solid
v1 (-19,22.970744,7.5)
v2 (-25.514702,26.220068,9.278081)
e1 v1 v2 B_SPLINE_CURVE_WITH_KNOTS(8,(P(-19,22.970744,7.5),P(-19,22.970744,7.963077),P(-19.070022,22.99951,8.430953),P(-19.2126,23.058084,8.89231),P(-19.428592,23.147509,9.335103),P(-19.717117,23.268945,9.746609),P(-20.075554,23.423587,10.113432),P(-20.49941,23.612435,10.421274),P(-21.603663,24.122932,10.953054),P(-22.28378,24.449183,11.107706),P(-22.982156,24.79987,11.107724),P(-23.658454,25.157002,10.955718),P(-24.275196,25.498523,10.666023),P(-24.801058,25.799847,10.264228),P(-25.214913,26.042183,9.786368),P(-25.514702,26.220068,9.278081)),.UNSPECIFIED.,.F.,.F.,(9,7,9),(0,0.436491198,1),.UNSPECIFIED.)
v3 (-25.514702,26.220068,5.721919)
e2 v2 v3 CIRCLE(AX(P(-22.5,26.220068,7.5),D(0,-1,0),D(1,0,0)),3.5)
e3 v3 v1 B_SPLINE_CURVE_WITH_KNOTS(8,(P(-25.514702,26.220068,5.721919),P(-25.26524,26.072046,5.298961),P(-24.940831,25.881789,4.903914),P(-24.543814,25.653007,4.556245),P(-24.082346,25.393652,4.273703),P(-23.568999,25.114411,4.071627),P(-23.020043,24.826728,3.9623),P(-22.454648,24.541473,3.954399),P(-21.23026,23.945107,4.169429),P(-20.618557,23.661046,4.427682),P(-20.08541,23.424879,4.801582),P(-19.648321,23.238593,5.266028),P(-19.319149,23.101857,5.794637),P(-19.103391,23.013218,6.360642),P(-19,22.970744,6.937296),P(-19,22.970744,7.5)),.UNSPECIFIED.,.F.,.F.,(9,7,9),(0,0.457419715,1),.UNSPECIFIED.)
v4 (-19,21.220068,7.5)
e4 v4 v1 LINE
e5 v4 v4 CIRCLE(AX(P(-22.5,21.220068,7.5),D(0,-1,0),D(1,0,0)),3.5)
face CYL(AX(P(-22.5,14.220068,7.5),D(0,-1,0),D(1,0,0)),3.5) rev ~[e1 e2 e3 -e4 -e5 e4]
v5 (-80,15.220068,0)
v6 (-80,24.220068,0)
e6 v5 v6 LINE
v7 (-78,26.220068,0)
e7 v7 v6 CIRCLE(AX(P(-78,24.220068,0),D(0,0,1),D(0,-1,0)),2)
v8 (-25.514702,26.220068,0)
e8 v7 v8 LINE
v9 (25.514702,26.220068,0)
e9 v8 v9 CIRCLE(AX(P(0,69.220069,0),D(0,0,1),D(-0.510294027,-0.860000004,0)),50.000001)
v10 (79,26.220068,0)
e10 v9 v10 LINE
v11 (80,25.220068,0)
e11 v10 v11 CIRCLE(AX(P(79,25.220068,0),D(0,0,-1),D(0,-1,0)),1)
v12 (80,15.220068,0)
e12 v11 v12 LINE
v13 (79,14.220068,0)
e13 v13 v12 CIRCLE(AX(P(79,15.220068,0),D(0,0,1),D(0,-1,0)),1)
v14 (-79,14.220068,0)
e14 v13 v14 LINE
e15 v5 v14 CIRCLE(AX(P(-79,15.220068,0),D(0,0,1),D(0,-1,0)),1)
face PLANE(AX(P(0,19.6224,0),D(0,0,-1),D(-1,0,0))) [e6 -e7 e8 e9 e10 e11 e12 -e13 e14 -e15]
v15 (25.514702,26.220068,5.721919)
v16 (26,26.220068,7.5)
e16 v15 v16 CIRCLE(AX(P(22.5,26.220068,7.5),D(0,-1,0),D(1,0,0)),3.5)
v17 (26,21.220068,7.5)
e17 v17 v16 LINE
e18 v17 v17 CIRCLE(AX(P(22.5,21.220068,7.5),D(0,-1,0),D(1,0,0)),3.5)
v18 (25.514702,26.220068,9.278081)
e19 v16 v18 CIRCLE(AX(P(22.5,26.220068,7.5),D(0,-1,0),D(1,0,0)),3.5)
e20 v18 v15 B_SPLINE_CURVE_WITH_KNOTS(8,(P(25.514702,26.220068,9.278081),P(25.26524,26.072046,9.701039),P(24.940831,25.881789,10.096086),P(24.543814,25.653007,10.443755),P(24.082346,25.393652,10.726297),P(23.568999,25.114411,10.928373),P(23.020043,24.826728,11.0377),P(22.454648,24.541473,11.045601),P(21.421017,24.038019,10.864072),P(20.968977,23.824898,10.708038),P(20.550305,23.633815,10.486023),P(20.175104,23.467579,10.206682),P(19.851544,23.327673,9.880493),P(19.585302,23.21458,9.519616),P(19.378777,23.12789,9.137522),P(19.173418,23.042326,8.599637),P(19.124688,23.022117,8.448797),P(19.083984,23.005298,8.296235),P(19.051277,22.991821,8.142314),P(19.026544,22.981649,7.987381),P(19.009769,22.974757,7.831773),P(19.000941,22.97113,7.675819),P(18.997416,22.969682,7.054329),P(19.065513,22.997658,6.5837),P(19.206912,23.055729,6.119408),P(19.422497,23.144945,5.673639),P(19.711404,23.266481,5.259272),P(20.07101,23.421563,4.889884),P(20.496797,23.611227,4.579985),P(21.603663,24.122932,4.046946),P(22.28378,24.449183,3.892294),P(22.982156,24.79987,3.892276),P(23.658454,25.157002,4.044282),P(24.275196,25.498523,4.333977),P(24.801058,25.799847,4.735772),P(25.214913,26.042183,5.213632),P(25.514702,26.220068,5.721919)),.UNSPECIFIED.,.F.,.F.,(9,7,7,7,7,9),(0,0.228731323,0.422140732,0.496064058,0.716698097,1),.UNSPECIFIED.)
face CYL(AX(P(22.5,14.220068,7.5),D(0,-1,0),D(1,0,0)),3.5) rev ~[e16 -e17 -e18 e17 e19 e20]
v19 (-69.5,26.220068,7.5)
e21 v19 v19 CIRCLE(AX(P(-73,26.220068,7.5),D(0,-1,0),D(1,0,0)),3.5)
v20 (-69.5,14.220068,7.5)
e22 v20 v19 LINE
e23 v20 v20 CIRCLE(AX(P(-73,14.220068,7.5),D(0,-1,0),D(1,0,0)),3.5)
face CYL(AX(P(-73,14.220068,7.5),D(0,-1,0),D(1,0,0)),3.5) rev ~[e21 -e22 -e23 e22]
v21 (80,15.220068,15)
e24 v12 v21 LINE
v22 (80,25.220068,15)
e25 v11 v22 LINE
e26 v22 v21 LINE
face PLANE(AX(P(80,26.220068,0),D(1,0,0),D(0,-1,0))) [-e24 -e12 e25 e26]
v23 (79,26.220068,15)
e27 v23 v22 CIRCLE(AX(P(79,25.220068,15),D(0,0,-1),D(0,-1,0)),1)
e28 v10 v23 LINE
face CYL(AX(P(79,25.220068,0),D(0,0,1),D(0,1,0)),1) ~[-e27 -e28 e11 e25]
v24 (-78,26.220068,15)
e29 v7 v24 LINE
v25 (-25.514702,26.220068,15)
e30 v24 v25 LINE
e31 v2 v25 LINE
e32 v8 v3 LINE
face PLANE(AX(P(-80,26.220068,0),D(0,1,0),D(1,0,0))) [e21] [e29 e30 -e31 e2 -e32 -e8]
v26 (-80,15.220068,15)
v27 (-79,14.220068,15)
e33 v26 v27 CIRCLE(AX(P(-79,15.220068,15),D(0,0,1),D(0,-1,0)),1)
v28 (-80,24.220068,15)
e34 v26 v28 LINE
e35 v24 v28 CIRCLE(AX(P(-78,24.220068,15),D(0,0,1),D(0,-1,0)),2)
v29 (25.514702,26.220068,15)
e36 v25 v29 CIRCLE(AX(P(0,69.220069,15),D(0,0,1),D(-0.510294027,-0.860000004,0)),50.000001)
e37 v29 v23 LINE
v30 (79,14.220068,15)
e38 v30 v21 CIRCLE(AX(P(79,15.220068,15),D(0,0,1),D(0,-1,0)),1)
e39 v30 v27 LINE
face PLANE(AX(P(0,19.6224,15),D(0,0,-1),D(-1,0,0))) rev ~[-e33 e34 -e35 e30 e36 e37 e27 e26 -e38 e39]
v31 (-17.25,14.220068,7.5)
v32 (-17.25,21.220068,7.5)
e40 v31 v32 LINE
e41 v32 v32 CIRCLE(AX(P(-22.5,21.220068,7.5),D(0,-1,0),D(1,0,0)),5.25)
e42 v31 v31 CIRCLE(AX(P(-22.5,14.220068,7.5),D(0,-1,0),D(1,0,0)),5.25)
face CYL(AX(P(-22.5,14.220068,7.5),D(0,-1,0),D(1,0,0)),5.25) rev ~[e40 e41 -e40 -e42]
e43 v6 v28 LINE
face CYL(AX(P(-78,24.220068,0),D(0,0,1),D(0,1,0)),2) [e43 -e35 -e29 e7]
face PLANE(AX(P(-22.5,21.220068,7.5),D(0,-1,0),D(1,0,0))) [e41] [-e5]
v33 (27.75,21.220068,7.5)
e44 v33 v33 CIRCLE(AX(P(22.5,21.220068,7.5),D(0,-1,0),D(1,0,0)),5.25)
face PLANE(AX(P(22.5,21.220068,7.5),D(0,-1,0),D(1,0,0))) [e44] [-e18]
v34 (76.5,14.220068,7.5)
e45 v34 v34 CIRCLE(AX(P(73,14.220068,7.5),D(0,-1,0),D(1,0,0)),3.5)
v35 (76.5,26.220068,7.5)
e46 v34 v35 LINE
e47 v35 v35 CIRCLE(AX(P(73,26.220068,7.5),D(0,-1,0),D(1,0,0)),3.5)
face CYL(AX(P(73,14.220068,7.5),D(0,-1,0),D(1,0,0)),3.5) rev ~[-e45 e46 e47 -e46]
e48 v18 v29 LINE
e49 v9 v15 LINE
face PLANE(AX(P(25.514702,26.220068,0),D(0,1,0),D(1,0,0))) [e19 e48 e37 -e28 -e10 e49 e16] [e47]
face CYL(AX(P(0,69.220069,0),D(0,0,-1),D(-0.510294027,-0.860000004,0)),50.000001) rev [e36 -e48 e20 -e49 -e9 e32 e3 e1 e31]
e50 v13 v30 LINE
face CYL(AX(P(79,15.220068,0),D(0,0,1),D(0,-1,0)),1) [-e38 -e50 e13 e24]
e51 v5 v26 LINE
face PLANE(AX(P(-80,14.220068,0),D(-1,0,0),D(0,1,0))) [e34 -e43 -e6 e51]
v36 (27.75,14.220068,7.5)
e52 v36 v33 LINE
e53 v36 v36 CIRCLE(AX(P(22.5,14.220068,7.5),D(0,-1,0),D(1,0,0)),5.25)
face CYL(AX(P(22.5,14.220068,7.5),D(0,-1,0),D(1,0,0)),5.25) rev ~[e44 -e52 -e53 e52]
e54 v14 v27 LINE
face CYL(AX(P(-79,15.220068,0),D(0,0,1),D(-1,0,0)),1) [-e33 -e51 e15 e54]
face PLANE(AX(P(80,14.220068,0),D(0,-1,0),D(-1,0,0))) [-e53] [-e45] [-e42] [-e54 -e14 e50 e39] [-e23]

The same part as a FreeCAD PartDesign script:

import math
import FreeCAD as App
import Part
import Sketcher


def edges_at(feature, points):
    """Names of the edges that pass closest to the given points."""
    edges = feature.Shape.Edges
    near = lambda p: min(range(len(edges)), key=lambda i: edges[i].distToShape(Part.Vertex(*p))[0])
    return sorted({f"Edge{near(p) + 1}" for p in points})

doc = App.newDocument("Part")
body = doc.addObject("PartDesign::Body", "Body")
body.AllowCompound = True

# Sketch on XZ plane
sketch1 = body.newObject("Sketcher::SketchObject", "Sketch")
sketch1.AttachmentSupport = (doc.getObject("XZ_Plane"), [""])
sketch1.MapMode = "FlatFace"
sketch1.AttachmentOffset = App.Placement(App.Vector(0, 0, -14.220068), App.Rotation())
sketch1.addGeometry([
    Part.Circle(App.Vector(-22.5, 7.5, 0), App.Vector(0, 0, 1), 5.25),
    Part.Circle(App.Vector(22.5, 7.5, 0), App.Vector(0, 0, 1), 5.25),
], False)
sketch1.addConstraint([
    Sketcher.Constraint("Equal", 0, 1),
    Sketcher.Constraint("Symmetric", 0, 3, 1, 3, -2),
    Sketcher.Constraint("Diameter", 0, 10.5),
    Sketcher.Constraint("DistanceX", 0, 3, 1, 3, 45.0),
    Sketcher.Constraint("DistanceY", -1, 1, 0, 3, 7.5),
])
pad1 = body.newObject("PartDesign::Pad", "Pad")
pad1.Profile = sketch1
pad1.Length = 7
pad1.Reversed = True
body2 = doc.addObject("PartDesign::Body", "Body001")
body2.AllowCompound = True

# Sketch on XZ plane
sketch2 = body2.newObject("Sketcher::SketchObject", "Sketch001")
sketch2.AttachmentSupport = (doc.getObject("XZ_Plane001"), [""])
sketch2.MapMode = "FlatFace"
sketch2.AttachmentOffset = App.Placement(App.Vector(0, 0, -14.220068), App.Rotation())
sketch2.addGeometry([
    Part.Circle(App.Vector(-73, 7.5, 0), App.Vector(0, 0, 1), 3.5),
    Part.Circle(App.Vector(73, 7.5, 0), App.Vector(0, 0, 1), 3.5),
    Part.Circle(App.Vector(-22.5, 7.5, 0), App.Vector(0, 0, 1), 3.5),
    Part.Circle(App.Vector(22.5, 7.5, 0), App.Vector(0, 0, 1), 3.5),
], False)
sketch2.addConstraint([
    Sketcher.Constraint("Equal", 0, 1),
    Sketcher.Constraint("Equal", 1, 2),
    Sketcher.Constraint("Equal", 2, 3),
    Sketcher.Constraint("Symmetric", 0, 3, 1, 3, -2),
    Sketcher.Constraint("Symmetric", 2, 3, 3, 3, -2),
    Sketcher.Constraint("Horizontal", 1, 3, 2, 3),
    Sketcher.Constraint("Diameter", 0, 7.0),
    Sketcher.Constraint("DistanceX", 0, 3, -1, 1, 73.0),
    Sketcher.Constraint("DistanceX", 2, 3, 3, 3, 45.0),
    Sketcher.Constraint("DistanceY", -1, 1, 0, 3, 7.5),
])
pad2 = body2.newObject("PartDesign::Pad", "Pad001")
pad2.Profile = sketch2
pad2.Length = 50
pad2.Reversed = True
body3 = doc.addObject("PartDesign::Body", "Body002")

# Sketch on XY plane
sketch3 = body3.newObject("Sketcher::SketchObject", "Sketch002")
sketch3.AttachmentSupport = (doc.getObject("XY_Plane002"), [""])
sketch3.MapMode = "FlatFace"
sketch3.addGeometry([
    Part.LineSegment(App.Vector(-25.514702, 26.220068, 0), App.Vector(-80, 26.220068, 0)),  # 0
    Part.LineSegment(App.Vector(-80, 26.220068, 0), App.Vector(-80, 14.220068, 0)),  # 1
    Part.LineSegment(App.Vector(-80, 14.220068, 0), App.Vector(80, 14.220068, 0)),  # 2
    Part.LineSegment(App.Vector(80, 14.220068, 0), App.Vector(80, 26.220068, 0)),  # 3
    Part.LineSegment(App.Vector(80, 26.220068, 0), App.Vector(25.514702, 26.220068, 0)),  # 4
    Part.ArcOfCircle(Part.Circle(App.Vector(0, 69.220069, 0), App.Vector(0, 0, 1), 50.000001), math.radians(-120.683417), math.radians(-59.316583)),  # 5
], False)
sketch3.addConstraint([
    Sketcher.Constraint("Coincident", 0, 2, 1, 1),
    Sketcher.Constraint("Coincident", 1, 2, 2, 1),
    Sketcher.Constraint("Coincident", 2, 2, 3, 1),
    Sketcher.Constraint("Coincident", 3, 2, 4, 1),
    Sketcher.Constraint("Coincident", 4, 2, 5, 2),
    Sketcher.Constraint("Coincident", 5, 1, 0, 1),
    Sketcher.Constraint("Horizontal", 0),
    Sketcher.Constraint("Vertical", 1),
    Sketcher.Constraint("Horizontal", 2),
    Sketcher.Constraint("Vertical", 3),
    Sketcher.Constraint("Horizontal", 4),
    Sketcher.Constraint("Symmetric", 0, 2, 3, 2, -2),
    Sketcher.Constraint("PointOnObject", 5, 3, -2),
    Sketcher.Constraint("Radius", 5, 50.000001),
    Sketcher.Constraint("DistanceX", 2, 1, 2, 2, 160.0),
    Sketcher.Constraint("DistanceY", 1, 2, 1, 1, 12.0),
    Sketcher.Constraint("DistanceY", 0, 2, 5, 3, 43.000001),
    Sketcher.Constraint("DistanceY", -1, 1, 5, 3, 69.220069),
])
pad3 = body3.newObject("PartDesign::Pad", "Pad002")
pad3.Profile = sketch3
pad3.Length = 15
doc.recompute()

boolean = body3.newObject("PartDesign::Boolean", "Boolean")
boolean.Type = "Cut"
boolean.addObjects([body2])
doc.recompute()

boolean2 = body3.newObject("PartDesign::Boolean", "Boolean001")
boolean2.Type = "Cut"
boolean2.addObjects([body])
doc.recompute()

fillet = body3.newObject("PartDesign::Fillet", "Fillet")
fillet.Base = (boolean2, edges_at(boolean2, [(-80, 26.22, 7.5)]))
fillet.Radius = 2
doc.recompute()

fillet2 = body3.newObject("PartDesign::Fillet", "Fillet001")
fillet2.Base = (fillet, edges_at(fillet, [(-80, 14.22, 7.5), (80, 26.22, 7.5), (80, 14.22, 7.5)]))
fillet2.Radius = 1

doc.recompute()
